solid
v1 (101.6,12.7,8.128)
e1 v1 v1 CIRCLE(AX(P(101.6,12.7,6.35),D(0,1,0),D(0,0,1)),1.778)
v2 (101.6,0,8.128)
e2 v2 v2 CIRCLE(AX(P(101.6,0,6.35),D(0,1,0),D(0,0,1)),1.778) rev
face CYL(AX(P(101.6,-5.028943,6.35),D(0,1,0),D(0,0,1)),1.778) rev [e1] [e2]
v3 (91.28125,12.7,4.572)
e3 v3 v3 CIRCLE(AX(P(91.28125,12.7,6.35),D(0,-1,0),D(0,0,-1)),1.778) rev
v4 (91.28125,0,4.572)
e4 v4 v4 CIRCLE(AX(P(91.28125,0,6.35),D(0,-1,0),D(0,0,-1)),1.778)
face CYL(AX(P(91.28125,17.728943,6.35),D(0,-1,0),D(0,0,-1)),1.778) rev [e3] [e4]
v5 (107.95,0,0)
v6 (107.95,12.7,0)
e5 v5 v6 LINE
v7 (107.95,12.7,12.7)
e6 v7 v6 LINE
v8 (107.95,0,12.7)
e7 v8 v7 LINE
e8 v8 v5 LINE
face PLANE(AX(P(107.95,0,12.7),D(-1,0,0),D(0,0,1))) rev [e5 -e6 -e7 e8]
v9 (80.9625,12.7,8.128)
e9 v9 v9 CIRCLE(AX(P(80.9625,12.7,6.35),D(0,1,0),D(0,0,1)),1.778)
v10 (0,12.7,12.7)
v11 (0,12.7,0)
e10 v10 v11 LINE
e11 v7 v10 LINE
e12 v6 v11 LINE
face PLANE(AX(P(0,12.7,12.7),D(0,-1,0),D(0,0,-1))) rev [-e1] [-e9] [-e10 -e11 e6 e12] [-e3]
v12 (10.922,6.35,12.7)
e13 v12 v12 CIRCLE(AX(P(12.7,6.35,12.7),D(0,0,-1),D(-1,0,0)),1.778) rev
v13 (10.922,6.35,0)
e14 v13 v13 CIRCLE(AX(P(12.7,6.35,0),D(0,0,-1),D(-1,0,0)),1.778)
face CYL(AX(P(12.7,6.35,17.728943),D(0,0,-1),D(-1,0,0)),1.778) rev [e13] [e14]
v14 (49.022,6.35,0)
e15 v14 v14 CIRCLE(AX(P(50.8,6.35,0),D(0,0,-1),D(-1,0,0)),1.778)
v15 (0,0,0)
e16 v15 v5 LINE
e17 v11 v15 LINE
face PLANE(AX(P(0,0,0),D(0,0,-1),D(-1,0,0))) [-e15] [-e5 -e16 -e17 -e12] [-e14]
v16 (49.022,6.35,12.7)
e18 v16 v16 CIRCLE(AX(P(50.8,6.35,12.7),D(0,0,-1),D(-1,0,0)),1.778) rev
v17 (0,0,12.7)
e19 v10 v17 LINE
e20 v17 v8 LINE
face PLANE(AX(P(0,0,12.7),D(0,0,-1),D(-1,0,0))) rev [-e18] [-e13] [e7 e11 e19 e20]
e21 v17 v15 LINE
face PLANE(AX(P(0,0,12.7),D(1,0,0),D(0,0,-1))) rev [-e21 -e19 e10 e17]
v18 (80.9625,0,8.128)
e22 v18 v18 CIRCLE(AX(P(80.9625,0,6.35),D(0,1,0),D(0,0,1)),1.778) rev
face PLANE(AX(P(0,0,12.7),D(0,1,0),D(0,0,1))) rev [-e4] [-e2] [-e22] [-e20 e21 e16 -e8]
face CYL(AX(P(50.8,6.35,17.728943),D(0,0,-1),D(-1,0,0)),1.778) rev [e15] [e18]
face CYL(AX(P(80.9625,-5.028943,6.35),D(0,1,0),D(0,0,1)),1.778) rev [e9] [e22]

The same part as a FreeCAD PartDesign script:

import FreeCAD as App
import Part
import Sketcher
Q = App.Units.Quantity


def add_polygon(sketch, points):
    """Adds a closed chain of lines whose ends are joined by coincident constraints."""
    first, n = sketch.GeometryCount, len(points)
    for a, b in zip(points, points[1:] + points[:1]):
        sketch.addGeometry(Part.LineSegment(App.Vector(*a, 0), App.Vector(*b, 0)), False)
    for i in range(n):
        sketch.addConstraint(Sketcher.Constraint("Coincident", first + i, 2, first + (i + 1) % n, 1))

doc = App.newDocument("Part")
body = doc.addObject("PartDesign::Body", "Body")

# Sketch on XY plane
sketch1 = doc.addObject("Sketcher::SketchObject", "Sketch")
body.addObject(sketch1)
sketch1.AttachmentSupport = (doc.XY_Plane, [""])
sketch1.MapMode = "FlatFace"
add_polygon(sketch1, [(0, 13), (0, 0), (108, 0), (108, 13)])  # lines 0-3
sketch1.addConstraint([
    Sketcher.Constraint("Vertical", 0),
    Sketcher.Constraint("Horizontal", 1),
    Sketcher.Constraint("Vertical", 2),
    Sketcher.Constraint("Horizontal", 3),
    Sketcher.Constraint("Coincident", 0, 2, -1, 1),
    Sketcher.Constraint("DistanceY", 0, 2, 0, 1, Q("0.5 in")),
    Sketcher.Constraint("DistanceX", 1, 1, 1, 2, Q("4.25 in")),
])
pad1 = doc.addObject("PartDesign::Pad", "Pad")
body.addObject(pad1)
pad1.Profile = sketch1
pad1.Length = Q("0.5 in")

# Sketch on XZ plane
sketch2 = doc.addObject("Sketcher::SketchObject", "Sketch001")
body.addObject(sketch2)
sketch2.AttachmentSupport = (doc.XZ_Plane, [""])
sketch2.MapMode = "FlatFace"
sketch2.AttachmentOffset = App.Placement(App.Vector(0, 0, -0.5 * 25.4), App.Rotation())
sketch2.addGeometry([
    Part.Circle(App.Vector(101.6, 6.3, 0), App.Vector(0, 0, 1), 1.8),
    Part.Circle(App.Vector(81, 6.3, 0), App.Vector(0, 0, 1), 1.8),
], False)
sketch2.addConstraint([
    Sketcher.Constraint("Equal", 0, 1),
    Sketcher.Constraint("Horizontal", 0, 3, 1, 3),
    Sketcher.Constraint("Diameter", 0, Q("0.14 in")),
    Sketcher.Constraint("DistanceX", -1, 1, 0, 3, Q("4 in")),
    Sketcher.Constraint("DistanceY", -1, 1, 0, 3, Q("0.25 in")),
    Sketcher.Constraint("DistanceX", -1, 1, 1, 3, Q("3.1875 in")),
])
pocket1 = doc.addObject("PartDesign::Pocket", "Pocket")
body.addObject(pocket1)
pocket1.Profile = sketch2
pocket1.Length = Q("0.5 in")
pocket1.Reversed = True

# Sketch on XZ plane
sketch3 = doc.addObject("Sketcher::SketchObject", "Sketch002")
body.addObject(sketch3)
sketch3.AttachmentSupport = (doc.XZ_Plane, [""])
sketch3.MapMode = "FlatFace"
sketch3.addGeometry(Part.Circle(App.Vector(91.3, 6.3, 0), App.Vector(0, 0, 1), 1.8), False)
sketch3.addConstraint([
    Sketcher.Constraint("Diameter", 0, Q("0.14 in")),
    Sketcher.Constraint("DistanceY", -1, 1, 0, 3, Q("0.25 in")),
    Sketcher.Constraint("DistanceX", -1, 1, 0, 3, Q("3.59375 in")),
])
pocket2 = doc.addObject("PartDesign::Pocket", "Pocket001")
body.addObject(pocket2)
pocket2.Profile = sketch3
pocket2.Length = Q("0.5 in")

# Sketch on XY plane
sketch4 = doc.addObject("Sketcher::SketchObject", "Sketch003")
body.addObject(sketch4)
sketch4.AttachmentSupport = (doc.XY_Plane, [""])
sketch4.MapMode = "FlatFace"
sketch4.addGeometry([
    Part.Circle(App.Vector(12.7, 6.3, 0), App.Vector(0, 0, 1), 1.8),
    Part.Circle(App.Vector(50.8, 6.3, 0), App.Vector(0, 0, 1), 1.8),
], False)
sketch4.addConstraint([
    Sketcher.Constraint("Equal", 0, 1),
    Sketcher.Constraint("Horizontal", 0, 3, 1, 3),
    Sketcher.Constraint("Diameter", 0, Q("0.14 in")),
    Sketcher.Constraint("DistanceX", -1, 1, 1, 3, Q("2 in")),
    Sketcher.Constraint("DistanceX", -1, 1, 0, 3, Q("0.5 in")),
    Sketcher.Constraint("DistanceY", -1, 1, 0, 3, Q("0.25 in")),
])
pocket3 = doc.addObject("PartDesign::Pocket", "Pocket002")
body.addObject(pocket3)
pocket3.Profile = sketch4
pocket3.Length = Q("0.5 in")
pocket3.Reversed = True

doc.recompute()
